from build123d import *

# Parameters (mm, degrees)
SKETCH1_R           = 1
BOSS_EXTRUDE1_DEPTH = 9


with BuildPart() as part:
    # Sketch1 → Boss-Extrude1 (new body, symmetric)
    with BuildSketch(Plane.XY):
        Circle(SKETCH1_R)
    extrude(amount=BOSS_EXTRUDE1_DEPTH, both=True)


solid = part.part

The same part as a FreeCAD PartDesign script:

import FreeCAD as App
import Part
import Sketcher

V = App.Vector

doc = App.newDocument("Part")
params = doc.addObject("Spreadsheet::Sheet", "Params")
for row, (alias, value) in enumerate([
    ("sketch1_diameter", "2 mm"),
    ("pad1_length", "18 mm"),
], start=1):
    params.set(f"A{row}", alias)
    params.set(f"B{row}", "=" + value)
    params.setAlias(f"B{row}", alias)

body = doc.addObject("PartDesign::Body", "Body")

# Sketch on XY plane
sketch1 = doc.addObject("Sketcher::SketchObject", "Sketch")
body.addObject(sketch1)
sketch1.AttachmentSupport = (doc.XY_Plane, [""])
sketch1.MapMode = "FlatFace"
sketch1.addGeometry(Part.Circle(V(0, 0, 0), V(0, 0, 1), 1), False)
sketch1.addConstraint([
    Sketcher.Constraint("Coincident", 0, 3, -1, 1),
    Sketcher.Constraint("Diameter", 0, 2.0),
])
sketch1.setExpression("Constraints[1]", "Params.sketch1_diameter")
pad1 = doc.addObject("PartDesign::Pad", "Pad")
body.addObject(pad1)
pad1.Profile = sketch1
pad1.setExpression("Length", "Params.pad1_length")
pad1.Midplane = True

doc.recompute()
